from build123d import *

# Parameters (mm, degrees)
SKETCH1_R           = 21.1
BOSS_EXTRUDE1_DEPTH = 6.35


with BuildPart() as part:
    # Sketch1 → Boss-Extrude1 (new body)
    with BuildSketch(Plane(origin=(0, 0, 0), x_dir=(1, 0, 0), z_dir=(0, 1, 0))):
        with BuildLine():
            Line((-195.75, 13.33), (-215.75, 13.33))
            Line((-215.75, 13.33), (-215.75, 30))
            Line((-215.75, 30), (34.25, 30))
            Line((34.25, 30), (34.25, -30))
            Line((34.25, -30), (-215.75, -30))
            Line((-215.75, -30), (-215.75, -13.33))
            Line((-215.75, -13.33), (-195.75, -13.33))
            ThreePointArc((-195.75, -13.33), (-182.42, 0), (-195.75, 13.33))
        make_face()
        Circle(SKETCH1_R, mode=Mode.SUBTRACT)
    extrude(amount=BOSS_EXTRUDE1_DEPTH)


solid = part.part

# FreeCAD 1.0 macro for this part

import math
import FreeCAD as App
import Part
import Sketcher
Q = App.Units.Quantity

doc = App.newDocument("Part")
body = doc.addObject("PartDesign::Body", "Body")

sketch1 = body.newObject("Sketcher::SketchObject", "Sketch")
sketch1.AttachmentSupport = (doc.getObject("XZ_Plane"), [""])
sketch1.MapMode = "FlatFace"
sketch1.addGeometry([
    Part.LineSegment(App.Vector(-216, -13, 0), App.Vector(-196, -13, 0)),
    Part.ArcOfCircle(Part.Circle(App.Vector(-196, 0, 0), App.Vector(0, 0, 1), 13), math.radians(-90), math.radians(90)),
    Part.LineSegment(App.Vector(-196, 13, 0), App.Vector(-216, 13, 0)),
    Part.LineSegment(App.Vector(-216, 13, 0), App.Vector(-216, 30, 0)),
    Part.LineSegment(App.Vector(-216, 30, 0), App.Vector(34, 30, 0)),
    Part.LineSegment(App.Vector(34, 30, 0), App.Vector(34, -30, 0)),
    Part.LineSegment(App.Vector(34, -30, 0), App.Vector(-216, -30, 0)),
    Part.LineSegment(App.Vector(-216, -30, 0), App.Vector(-216, -13, 0)),
    Part.Circle(App.Vector(0, 0, 0), App.Vector(0, 0, 1), 21),
], False)
sketch1.addConstraint([
    Sketcher.Constraint("Tangent", 0, 2, 1, 1),
    Sketcher.Constraint("Tangent", 1, 2, 2, 1),
    Sketcher.Constraint("Coincident", 2, 2, 3, 1),
    Sketcher.Constraint("Coincident", 3, 2, 4, 1),
    Sketcher.Constraint("Coincident", 4, 2, 5, 1),
    Sketcher.Constraint("Coincident", 5, 2, 6, 1),
    Sketcher.Constraint("Coincident", 6, 2, 7, 1),
    Sketcher.Constraint("Coincident", 7, 2, 0, 1),
    Sketcher.Constraint("Horizontal", 0),
    Sketcher.Constraint("Horizontal", 2),
    Sketcher.Constraint("Vertical", 3),
    Sketcher.Constraint("Horizontal", 4),
    Sketcher.Constraint("Vertical", 5),
    Sketcher.Constraint("Horizontal", 6),
    Sketcher.Constraint("Vertical", 7),
    Sketcher.Constraint("Coincident", 8, 3, -1, 1),
    Sketcher.Constraint("Symmetric", 3, 2, 6, 2, -1),
    Sketcher.Constraint("PointOnObject", 1, 3, -1),
    Sketcher.Constraint("Diameter", 8, Q("42.2 mm")),
    Sketcher.Constraint("DistanceX", 0, 1, 0, 2, Q("20 mm")),
    Sketcher.Constraint("DistanceX", 4, 1, 4, 2, Q("250 mm")),
    Sketcher.Constraint("DistanceY", 5, 2, 5, 1, Q("60 mm")),
    Sketcher.Constraint("Radius", 1, Q("13.33 mm")),
    Sketcher.Constraint("DistanceX", 1, 3, -1, 1, Q("195.75 mm")),
])
pad1 = body.newObject("PartDesign::Pad", "Pad")
pad1.Profile = sketch1
pad1.Length = 6.35
pad1.Reversed = True

doc.recompute()
